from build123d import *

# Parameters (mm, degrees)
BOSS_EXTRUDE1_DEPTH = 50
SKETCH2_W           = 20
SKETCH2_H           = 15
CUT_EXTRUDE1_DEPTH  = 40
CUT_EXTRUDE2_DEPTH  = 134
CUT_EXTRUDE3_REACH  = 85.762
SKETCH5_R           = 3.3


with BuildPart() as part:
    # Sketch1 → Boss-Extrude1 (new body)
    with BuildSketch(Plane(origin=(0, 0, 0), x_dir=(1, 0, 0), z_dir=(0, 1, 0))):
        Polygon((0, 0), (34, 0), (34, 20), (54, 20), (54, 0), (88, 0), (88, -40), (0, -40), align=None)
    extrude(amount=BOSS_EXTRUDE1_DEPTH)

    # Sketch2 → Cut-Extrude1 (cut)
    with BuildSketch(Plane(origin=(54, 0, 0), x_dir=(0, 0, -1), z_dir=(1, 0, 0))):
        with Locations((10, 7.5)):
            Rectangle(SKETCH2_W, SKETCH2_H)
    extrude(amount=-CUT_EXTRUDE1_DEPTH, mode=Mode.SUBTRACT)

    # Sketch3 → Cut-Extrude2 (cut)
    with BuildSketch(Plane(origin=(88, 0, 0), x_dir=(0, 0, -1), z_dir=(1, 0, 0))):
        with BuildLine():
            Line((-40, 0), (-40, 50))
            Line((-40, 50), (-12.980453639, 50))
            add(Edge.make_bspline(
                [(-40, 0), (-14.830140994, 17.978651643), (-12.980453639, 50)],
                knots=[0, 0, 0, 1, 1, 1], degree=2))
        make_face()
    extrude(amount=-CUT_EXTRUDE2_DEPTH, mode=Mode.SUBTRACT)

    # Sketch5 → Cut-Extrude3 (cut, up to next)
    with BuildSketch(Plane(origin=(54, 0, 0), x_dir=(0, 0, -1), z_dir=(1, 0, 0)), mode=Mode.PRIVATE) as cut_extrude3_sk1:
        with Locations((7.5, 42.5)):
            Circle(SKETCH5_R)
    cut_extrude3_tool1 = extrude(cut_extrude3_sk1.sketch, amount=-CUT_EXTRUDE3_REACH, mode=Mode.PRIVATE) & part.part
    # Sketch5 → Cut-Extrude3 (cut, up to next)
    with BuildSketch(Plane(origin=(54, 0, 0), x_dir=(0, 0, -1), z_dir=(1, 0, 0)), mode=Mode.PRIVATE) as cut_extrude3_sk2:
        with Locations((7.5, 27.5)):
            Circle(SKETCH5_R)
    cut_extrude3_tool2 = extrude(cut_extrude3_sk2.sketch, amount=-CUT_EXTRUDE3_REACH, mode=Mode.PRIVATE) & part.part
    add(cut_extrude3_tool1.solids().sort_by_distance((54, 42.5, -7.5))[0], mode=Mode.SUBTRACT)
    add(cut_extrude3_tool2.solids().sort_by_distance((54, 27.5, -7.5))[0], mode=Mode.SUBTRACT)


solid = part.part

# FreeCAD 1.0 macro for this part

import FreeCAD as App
import Part
import Sketcher

doc = App.newDocument("Part")
body = doc.addObject("PartDesign::Body", "Body")

# Sketch on XZ plane
sketch1 = doc.addObject("Sketcher::SketchObject", "Sketch")
body.addObject(sketch1)
sketch1.AttachmentSupport = (doc.XZ_Plane, [""])
sketch1.MapMode = "FlatFace"
sketch1.addGeometry([
    Part.LineSegment(App.Vector(34, 0, 0), App.Vector(0, 0, 0)),  # 0
    Part.LineSegment(App.Vector(0, 0, 0), App.Vector(0, 40, 0)),  # 1
    Part.LineSegment(App.Vector(0, 40, 0), App.Vector(88, 40, 0)),  # 2
    Part.LineSegment(App.Vector(88, 40, 0), App.Vector(88, 0, 0)),  # 3
    Part.LineSegment(App.Vector(88, 0, 0), App.Vector(54, 0, 0)),  # 4
    Part.LineSegment(App.Vector(54, 0, 0), App.Vector(54, -20, 0)),  # 5
    Part.LineSegment(App.Vector(54, -20, 0), App.Vector(34, -20, 0)),  # 6
    Part.LineSegment(App.Vector(34, -20, 0), App.Vector(34, 0, 0)),  # 7
], False)
sketch1.addConstraint([
    Sketcher.Constraint("Coincident", 0, 2, 1, 1),
    Sketcher.Constraint("Coincident", 1, 2, 2, 1),
    Sketcher.Constraint("Coincident", 2, 2, 3, 1),
    Sketcher.Constraint("Coincident", 3, 2, 4, 1),
    Sketcher.Constraint("Coincident", 4, 2, 5, 1),
    Sketcher.Constraint("Coincident", 5, 2, 6, 1),
    Sketcher.Constraint("Coincident", 6, 2, 7, 1),
    Sketcher.Constraint("Coincident", 7, 2, 0, 1),
    Sketcher.Constraint("Horizontal", 0),
    Sketcher.Constraint("Vertical", 1),
    Sketcher.Constraint("Horizontal", 2),
    Sketcher.Constraint("Vertical", 3),
    Sketcher.Constraint("Horizontal", 4),
    Sketcher.Constraint("Vertical", 5),
    Sketcher.Constraint("Horizontal", 6),
    Sketcher.Constraint("Vertical", 7),
    Sketcher.Constraint("Coincident", 0, 2, -1, 1),
    Sketcher.Constraint("PointOnObject", 3, 2, -1),
    Sketcher.Constraint("Equal", 0, 4),
    Sketcher.Constraint("Equal", 6, 5),
    Sketcher.Constraint("DistanceX", 0, 2, 0, 1, 34.0),
    Sketcher.Constraint("DistanceX", 2, 1, 2, 2, 88.0),
    Sketcher.Constraint("DistanceY", 1, 1, 1, 2, 40.0),
])
pad1 = doc.addObject("PartDesign::Pad", "Pad")
body.addObject(pad1)
pad1.Profile = sketch1
pad1.Length = 50
pad1.Reversed = True

# Sketch on YZ plane
sketch2 = doc.addObject("Sketcher::SketchObject", "Sketch001")
body.addObject(sketch2)
sketch2.AttachmentSupport = (doc.YZ_Plane, [""])
sketch2.MapMode = "FlatFace"
sketch2.AttachmentOffset = App.Placement(App.Vector(0, 0, 54), App.Rotation())
sketch2.addGeometry([
    Part.LineSegment(App.Vector(15, 0, 0), App.Vector(0, 0, 0)),
    Part.LineSegment(App.Vector(0, 0, 0), App.Vector(0, -20, 0)),
    Part.LineSegment(App.Vector(0, -20, 0), App.Vector(15, -20, 0)),
    Part.LineSegment(App.Vector(15, -20, 0), App.Vector(15, 0, 0)),
], False)
sketch2.addConstraint([
    Sketcher.Constraint("Coincident", 0, 2, 1, 1),
    Sketcher.Constraint("Coincident", 1, 2, 2, 1),
    Sketcher.Constraint("Coincident", 2, 2, 3, 1),
    Sketcher.Constraint("Coincident", 3, 2, 0, 1),
    Sketcher.Constraint("Horizontal", 0),
    Sketcher.Constraint("Vertical", 1),
    Sketcher.Constraint("Horizontal", 2),
    Sketcher.Constraint("Vertical", 3),
    Sketcher.Constraint("Coincident", 0, 2, -1, 1),
    Sketcher.Constraint("DistanceX", 0, 2, 0, 1, 15.0),
    Sketcher.Constraint("DistanceY", 1, 2, 1, 1, 20.0),
])
pocket1 = doc.addObject("PartDesign::Pocket", "Pocket")
body.addObject(pocket1)
pocket1.Profile = sketch2
pocket1.Length = 40

# Sketch on YZ plane
sketch3 = doc.addObject("Sketcher::SketchObject", "Sketch002")
body.addObject(sketch3)
sketch3.AttachmentSupport = (doc.YZ_Plane, [""])
sketch3.MapMode = "FlatFace"
sketch3.AttachmentOffset = App.Placement(App.Vector(0, 0, 88), App.Rotation())
sketch3.addGeometry([
    Part.LineSegment(App.Vector(50, 40, 0), App.Vector(0, 40, 0)),
    Part.BSplineCurve([App.Vector(0, 40, 0), App.Vector(17.978652, 14.830141, 0), App.Vector(50, 12.980454, 0)], [3, 3], [0, 1], False, 2, [1, 1, 1], False),
    Part.LineSegment(App.Vector(50, 12.980454, 0), App.Vector(50, 40, 0)),
], False)
sketch3.addConstraint([
    Sketcher.Constraint("Block", 1),
    Sketcher.Constraint("Coincident", 0, 2, 1, 1),
    Sketcher.Constraint("Coincident", 1, 2, 2, 1),
    Sketcher.Constraint("Coincident", 2, 2, 0, 1),
    Sketcher.Constraint("Horizontal", 0),
    Sketcher.Constraint("Vertical", 2),
])
pocket2 = doc.addObject("PartDesign::Pocket", "Pocket001")
body.addObject(pocket2)
pocket2.Profile = sketch3
pocket2.Length = 134

# Sketch on YZ plane
sketch4 = doc.addObject("Sketcher::SketchObject", "Sketch003")
body.addObject(sketch4)
sketch4.AttachmentSupport = (doc.YZ_Plane, [""])
sketch4.MapMode = "FlatFace"
sketch4.AttachmentOffset = App.Placement(App.Vector(0, 0, 54), App.Rotation())
sketch4.addGeometry(Part.Circle(App.Vector(42.5, -7.5, 0), App.Vector(0, 0, 1), 3.3), False)
sketch4.addConstraint([
    Sketcher.Constraint("Diameter", 0, 6.6),
    Sketcher.Constraint("DistanceX", -1, 1, 0, 3, 42.5),
    Sketcher.Constraint("DistanceY", 0, 3, -1, 1, 7.5),
])
pocket3 = doc.addObject("PartDesign::Pocket", "Pocket002")
body.addObject(pocket3)
pocket3.Profile = sketch4
pocket3.Type = "UpToFirst"

# Sketch on YZ plane
sketch5 = doc.addObject("Sketcher::SketchObject", "Sketch004")
body.addObject(sketch5)
sketch5.AttachmentSupport = (doc.YZ_Plane, [""])
sketch5.MapMode = "FlatFace"
sketch5.AttachmentOffset = App.Placement(App.Vector(0, 0, 54), App.Rotation())
sketch5.addGeometry(Part.Circle(App.Vector(27.5, -7.5, 0), App.Vector(0, 0, 1), 3.3), False)
sketch5.addConstraint([
    Sketcher.Constraint("Diameter", 0, 6.6),
    Sketcher.Constraint("DistanceX", -1, 1, 0, 3, 27.5),
    Sketcher.Constraint("DistanceY", 0, 3, -1, 1, 7.5),
])
pocket4 = doc.addObject("PartDesign::Pocket", "Pocket003")
body.addObject(pocket4)
pocket4.Profile = sketch5
pocket4.Type = "UpToFirst"

doc.recompute()
